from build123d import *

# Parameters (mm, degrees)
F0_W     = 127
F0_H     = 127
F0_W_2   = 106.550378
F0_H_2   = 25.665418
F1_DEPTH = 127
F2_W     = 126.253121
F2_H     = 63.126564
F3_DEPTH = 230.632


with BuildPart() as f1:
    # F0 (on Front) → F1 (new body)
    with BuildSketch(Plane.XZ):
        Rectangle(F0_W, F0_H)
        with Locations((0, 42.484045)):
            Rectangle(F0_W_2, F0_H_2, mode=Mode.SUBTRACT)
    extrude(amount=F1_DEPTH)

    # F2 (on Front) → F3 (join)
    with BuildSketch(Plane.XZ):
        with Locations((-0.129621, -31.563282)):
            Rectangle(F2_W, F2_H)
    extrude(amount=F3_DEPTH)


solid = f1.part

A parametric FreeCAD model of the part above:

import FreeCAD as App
import Part
import Sketcher

V = App.Vector
Q = App.Units.Quantity


def add_polygon(sketch, points):
    """Adds a closed chain of lines whose ends are joined by coincident constraints."""
    first, n = sketch.GeometryCount, len(points)
    for a, b in zip(points, points[1:] + points[:1]):
        sketch.addGeometry(Part.LineSegment(App.Vector(*a, 0), App.Vector(*b, 0)), False)
    for i in range(n):
        sketch.addConstraint(Sketcher.Constraint("Coincident", first + i, 2, first + (i + 1) % n, 1))

doc = App.newDocument("Part")
body = doc.addObject("PartDesign::Body", "Body")

sketch1 = body.newObject("Sketcher::SketchObject", "Sketch")
sketch1.AttachmentSupport = (doc.getObject("XZ_Plane"), [""])
sketch1.MapMode = "FlatFace"
add_polygon(sketch1, [(-64, 64), (-64, -64), (64, -64), (64, 64)])
add_polygon(sketch1, [(53, 30), (-53, 30), (-53, 55), (53, 55)])
sketch1.addConstraint([
    Sketcher.Constraint("Vertical", 0),
    Sketcher.Constraint("Horizontal", 1),
    Sketcher.Constraint("Vertical", 2),
    Sketcher.Constraint("Horizontal", 3),
    Sketcher.Constraint("Horizontal", 4),
    Sketcher.Constraint("Vertical", 5),
    Sketcher.Constraint("Horizontal", 6),
    Sketcher.Constraint("Vertical", 7),
    Sketcher.Constraint("Symmetric", 0, 2, 2, 2, -1, 1),
    Sketcher.Constraint("Equal", 3, 0),
    Sketcher.Constraint("DistanceX", 1, 1, 1, 2, Q("5 in")),
    Sketcher.Constraint("DistanceY", 5, 1, 5, 2, Q("25.665418 mm")),
    Sketcher.Constraint("DistanceX", 4, 2, 4, 1, Q("106.550378 mm")),
    Sketcher.Constraint("DistanceX", 4, 2, -1, 1, Q("53.275189 mm")),
    Sketcher.Constraint("DistanceY", -1, 1, 4, 2, Q("29.651336 mm")),
])
pad1 = body.newObject("PartDesign::Pad", "Pad")
pad1.Profile = sketch1
pad1.Length = Q("5 in")

sketch2 = body.newObject("Sketcher::SketchObject", "Sketch001")
sketch2.AttachmentSupport = (doc.getObject("XZ_Plane"), [""])
sketch2.MapMode = "FlatFace"
add_polygon(sketch2, [(-63, 0), (-63, -63), (63, -63), (63, 0)])
sketch2.addConstraint([
    Sketcher.Constraint("Vertical", 0),
    Sketcher.Constraint("Horizontal", 1),
    Sketcher.Constraint("Vertical", 2),
    Sketcher.Constraint("Horizontal", 3),
    Sketcher.Constraint("PointOnObject", 2, 2, -1),
    Sketcher.Constraint("DistanceX", 1, 1, 1, 2, Q("126.253121 mm")),
    Sketcher.Constraint("DistanceY", 0, 2, 0, 1, Q("63.126564 mm")),
    Sketcher.Constraint("DistanceX", 0, 2, -1, 1, Q("63.256181 mm")),
])
pad2 = body.newObject("PartDesign::Pad", "Pad001")
pad2.Profile = sketch2
pad2.Length = Q("9.08 in")

doc.recompute()
